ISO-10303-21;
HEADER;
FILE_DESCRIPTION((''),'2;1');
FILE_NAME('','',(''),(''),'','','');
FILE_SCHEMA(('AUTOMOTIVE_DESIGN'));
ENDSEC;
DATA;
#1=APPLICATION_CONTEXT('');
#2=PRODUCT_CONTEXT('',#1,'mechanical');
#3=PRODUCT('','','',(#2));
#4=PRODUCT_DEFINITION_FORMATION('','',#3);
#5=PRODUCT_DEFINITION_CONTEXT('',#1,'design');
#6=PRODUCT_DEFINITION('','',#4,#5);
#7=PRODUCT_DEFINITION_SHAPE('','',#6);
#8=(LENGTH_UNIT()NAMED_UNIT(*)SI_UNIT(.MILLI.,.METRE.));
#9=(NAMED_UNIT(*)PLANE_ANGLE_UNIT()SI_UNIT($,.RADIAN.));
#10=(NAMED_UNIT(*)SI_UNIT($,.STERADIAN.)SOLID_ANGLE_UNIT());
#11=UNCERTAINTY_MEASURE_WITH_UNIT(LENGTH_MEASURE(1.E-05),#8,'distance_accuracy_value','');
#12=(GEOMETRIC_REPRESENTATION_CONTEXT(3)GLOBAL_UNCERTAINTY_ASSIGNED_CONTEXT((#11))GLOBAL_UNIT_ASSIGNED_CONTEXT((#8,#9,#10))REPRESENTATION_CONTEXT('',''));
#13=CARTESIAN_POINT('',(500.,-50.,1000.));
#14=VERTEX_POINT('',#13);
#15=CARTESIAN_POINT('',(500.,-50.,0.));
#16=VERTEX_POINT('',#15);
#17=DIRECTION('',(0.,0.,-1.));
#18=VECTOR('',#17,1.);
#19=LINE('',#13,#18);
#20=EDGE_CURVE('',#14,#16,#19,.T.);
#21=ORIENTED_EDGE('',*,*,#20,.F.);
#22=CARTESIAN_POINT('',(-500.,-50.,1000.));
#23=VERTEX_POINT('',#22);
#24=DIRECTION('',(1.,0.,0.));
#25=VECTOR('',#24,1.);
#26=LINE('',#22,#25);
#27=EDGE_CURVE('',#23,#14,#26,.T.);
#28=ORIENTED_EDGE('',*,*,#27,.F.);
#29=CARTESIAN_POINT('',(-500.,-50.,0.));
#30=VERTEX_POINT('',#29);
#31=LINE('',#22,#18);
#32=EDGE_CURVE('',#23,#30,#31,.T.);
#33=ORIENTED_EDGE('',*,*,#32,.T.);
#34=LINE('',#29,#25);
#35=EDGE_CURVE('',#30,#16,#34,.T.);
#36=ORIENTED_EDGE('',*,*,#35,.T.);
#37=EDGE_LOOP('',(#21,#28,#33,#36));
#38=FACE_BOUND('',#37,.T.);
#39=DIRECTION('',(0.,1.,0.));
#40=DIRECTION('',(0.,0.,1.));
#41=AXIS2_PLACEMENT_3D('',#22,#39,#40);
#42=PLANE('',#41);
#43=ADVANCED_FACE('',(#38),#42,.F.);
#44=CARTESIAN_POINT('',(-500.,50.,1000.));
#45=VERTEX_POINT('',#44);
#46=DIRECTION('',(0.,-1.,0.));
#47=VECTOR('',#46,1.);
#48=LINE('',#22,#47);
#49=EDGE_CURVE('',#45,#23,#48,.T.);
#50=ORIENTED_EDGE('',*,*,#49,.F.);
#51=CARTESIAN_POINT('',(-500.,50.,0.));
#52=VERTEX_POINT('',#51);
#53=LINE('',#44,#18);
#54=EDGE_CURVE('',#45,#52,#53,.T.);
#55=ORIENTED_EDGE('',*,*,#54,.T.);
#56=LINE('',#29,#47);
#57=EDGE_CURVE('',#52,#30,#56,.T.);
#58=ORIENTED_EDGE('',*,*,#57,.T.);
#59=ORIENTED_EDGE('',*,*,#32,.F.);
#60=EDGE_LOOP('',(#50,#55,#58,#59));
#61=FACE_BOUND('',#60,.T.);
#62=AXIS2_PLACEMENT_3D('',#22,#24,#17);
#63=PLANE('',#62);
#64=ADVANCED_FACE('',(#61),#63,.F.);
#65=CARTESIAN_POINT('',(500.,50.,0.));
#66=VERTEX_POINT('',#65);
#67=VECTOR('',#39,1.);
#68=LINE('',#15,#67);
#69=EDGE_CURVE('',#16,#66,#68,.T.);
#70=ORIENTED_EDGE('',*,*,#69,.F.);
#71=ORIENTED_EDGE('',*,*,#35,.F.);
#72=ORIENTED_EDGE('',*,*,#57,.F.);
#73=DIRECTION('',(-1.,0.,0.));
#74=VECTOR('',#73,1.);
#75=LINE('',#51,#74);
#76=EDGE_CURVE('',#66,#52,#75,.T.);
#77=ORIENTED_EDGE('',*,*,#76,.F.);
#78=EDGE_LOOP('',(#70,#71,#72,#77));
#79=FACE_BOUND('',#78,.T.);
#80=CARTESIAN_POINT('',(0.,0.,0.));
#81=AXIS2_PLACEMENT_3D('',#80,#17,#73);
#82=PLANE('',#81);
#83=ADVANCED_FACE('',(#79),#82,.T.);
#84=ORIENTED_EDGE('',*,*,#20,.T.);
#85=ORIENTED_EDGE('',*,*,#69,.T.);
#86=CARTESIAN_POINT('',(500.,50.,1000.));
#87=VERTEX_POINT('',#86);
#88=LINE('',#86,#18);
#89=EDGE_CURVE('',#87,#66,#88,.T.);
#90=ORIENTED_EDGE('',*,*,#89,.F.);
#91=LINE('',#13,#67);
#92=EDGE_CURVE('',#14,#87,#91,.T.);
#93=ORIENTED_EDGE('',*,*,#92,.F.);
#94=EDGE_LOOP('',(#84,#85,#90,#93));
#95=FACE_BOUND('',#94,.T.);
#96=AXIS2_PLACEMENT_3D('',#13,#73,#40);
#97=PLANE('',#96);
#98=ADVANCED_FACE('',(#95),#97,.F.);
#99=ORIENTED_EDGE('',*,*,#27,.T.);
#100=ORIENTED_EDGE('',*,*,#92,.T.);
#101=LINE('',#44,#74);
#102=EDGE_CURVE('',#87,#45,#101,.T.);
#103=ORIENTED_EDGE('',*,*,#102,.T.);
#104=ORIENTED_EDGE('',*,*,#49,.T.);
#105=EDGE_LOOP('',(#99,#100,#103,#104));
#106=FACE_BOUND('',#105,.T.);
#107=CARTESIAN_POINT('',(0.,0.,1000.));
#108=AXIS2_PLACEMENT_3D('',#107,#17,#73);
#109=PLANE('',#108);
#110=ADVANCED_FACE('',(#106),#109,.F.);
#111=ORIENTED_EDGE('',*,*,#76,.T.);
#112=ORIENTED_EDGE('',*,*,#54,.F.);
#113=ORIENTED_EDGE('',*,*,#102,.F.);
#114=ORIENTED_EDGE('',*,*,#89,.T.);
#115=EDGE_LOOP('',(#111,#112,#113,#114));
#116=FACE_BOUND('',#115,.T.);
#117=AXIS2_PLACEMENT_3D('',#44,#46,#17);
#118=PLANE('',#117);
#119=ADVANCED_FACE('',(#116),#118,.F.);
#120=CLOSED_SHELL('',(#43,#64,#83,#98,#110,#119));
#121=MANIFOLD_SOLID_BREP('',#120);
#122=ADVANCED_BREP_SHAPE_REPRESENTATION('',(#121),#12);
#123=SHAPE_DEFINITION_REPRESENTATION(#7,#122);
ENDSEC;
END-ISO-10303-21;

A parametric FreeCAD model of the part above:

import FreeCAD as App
import Part
import Sketcher

V = App.Vector

doc = App.newDocument("Part")
body = doc.addObject("PartDesign::Body", "Body")

sketch1 = doc.addObject("Sketcher::SketchObject", "Sketch")
body.addObject(sketch1)
sketch1.AttachmentSupport = (doc.XY_Plane, [""])
sketch1.MapMode = "FlatFace"
sketch1.addGeometry([
    Part.LineSegment(V(-500, 50, 0), V(-500, -50, 0)),
    Part.LineSegment(V(-500, -50, 0), V(500, -50, 0)),
    Part.LineSegment(V(500, -50, 0), V(500, 50, 0)),
    Part.LineSegment(V(500, 50, 0), V(-500, 50, 0)),
], False)
sketch1.addConstraint([
    Sketcher.Constraint("Coincident", 0, 2, 1, 1),
    Sketcher.Constraint("Coincident", 1, 2, 2, 1),
    Sketcher.Constraint("Coincident", 2, 2, 3, 1),
    Sketcher.Constraint("Coincident", 3, 2, 0, 1),
    Sketcher.Constraint("Vertical", 0),
    Sketcher.Constraint("Horizontal", 1),
    Sketcher.Constraint("Vertical", 2),
    Sketcher.Constraint("Horizontal", 3),
    Sketcher.Constraint("Symmetric", 0, 2, 2, 2, -1, 1),
    Sketcher.Constraint("DistanceX", 1, 1, 1, 2, 1000.0),
    Sketcher.Constraint("DistanceY", 0, 2, 0, 1, 100.0),
])
pad1 = doc.addObject("PartDesign::Pad", "Pad")
body.addObject(pad1)
pad1.Profile = sketch1
pad1.Length = 1000

doc.recompute()
